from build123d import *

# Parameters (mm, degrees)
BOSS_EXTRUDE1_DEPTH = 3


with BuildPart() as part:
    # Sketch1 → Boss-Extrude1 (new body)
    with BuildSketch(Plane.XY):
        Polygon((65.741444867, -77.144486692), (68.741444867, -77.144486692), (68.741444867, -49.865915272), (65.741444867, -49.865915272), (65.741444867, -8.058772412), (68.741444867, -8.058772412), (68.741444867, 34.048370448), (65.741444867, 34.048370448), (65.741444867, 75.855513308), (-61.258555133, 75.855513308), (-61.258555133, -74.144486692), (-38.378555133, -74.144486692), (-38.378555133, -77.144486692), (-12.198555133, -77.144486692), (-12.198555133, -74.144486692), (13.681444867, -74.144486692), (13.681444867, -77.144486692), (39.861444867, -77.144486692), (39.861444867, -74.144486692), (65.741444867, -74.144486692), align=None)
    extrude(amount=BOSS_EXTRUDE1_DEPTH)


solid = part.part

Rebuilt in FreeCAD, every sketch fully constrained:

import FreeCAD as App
import Part
import Sketcher

doc = App.newDocument("Part")
body = doc.addObject("PartDesign::Body", "Body")

# Sketch on XY plane
sketch1 = body.newObject("Sketcher::SketchObject", "Sketch")
sketch1.AttachmentSupport = (doc.getObject("XY_Plane"), [""])
sketch1.MapMode = "FlatFace"
sketch1.addGeometry([
    Part.LineSegment(App.Vector(65.7, -77.1, 0), App.Vector(68.7, -77.1, 0)),  # 0
    Part.LineSegment(App.Vector(68.7, -77.1, 0), App.Vector(68.7, -49.9, 0)),  # 1
    Part.LineSegment(App.Vector(68.7, -49.9, 0), App.Vector(65.7, -49.9, 0)),  # 2
    Part.LineSegment(App.Vector(65.7, -49.9, 0), App.Vector(65.7, -8.1, 0)),  # 3
    Part.LineSegment(App.Vector(65.7, -8.1, 0), App.Vector(68.7, -8.1, 0)),  # 4
    Part.LineSegment(App.Vector(68.7, -8.1, 0), App.Vector(68.7, 34, 0)),  # 5
    Part.LineSegment(App.Vector(68.7, 34, 0), App.Vector(65.7, 34, 0)),  # 6
    Part.LineSegment(App.Vector(65.7, 34, 0), App.Vector(65.7, 75.9, 0)),  # 7
    Part.LineSegment(App.Vector(65.7, 75.9, 0), App.Vector(-61.3, 75.9, 0)),  # 8
    Part.LineSegment(App.Vector(-61.3, 75.9, 0), App.Vector(-61.3, -74.1, 0)),  # 9
    Part.LineSegment(App.Vector(-61.3, -74.1, 0), App.Vector(-38.4, -74.1, 0)),  # 10
    Part.LineSegment(App.Vector(-38.4, -74.1, 0), App.Vector(-38.4, -77.1, 0)),  # 11
    Part.LineSegment(App.Vector(-38.4, -77.1, 0), App.Vector(-12.2, -77.1, 0)),  # 12
    Part.LineSegment(App.Vector(-12.2, -77.1, 0), App.Vector(-12.2, -74.1, 0)),  # 13
    Part.LineSegment(App.Vector(-12.2, -74.1, 0), App.Vector(13.7, -74.1, 0)),  # 14
    Part.LineSegment(App.Vector(13.7, -74.1, 0), App.Vector(13.7, -77.1, 0)),  # 15
    Part.LineSegment(App.Vector(13.7, -77.1, 0), App.Vector(39.9, -77.1, 0)),  # 16
    Part.LineSegment(App.Vector(39.9, -77.1, 0), App.Vector(39.9, -74.1, 0)),  # 17
    Part.LineSegment(App.Vector(39.9, -74.1, 0), App.Vector(65.7, -74.1, 0)),  # 18
    Part.LineSegment(App.Vector(65.7, -74.1, 0), App.Vector(65.7, -77.1, 0)),  # 19
], False)
sketch1.addConstraint([
    Sketcher.Constraint("Coincident", 0, 2, 1, 1),
    Sketcher.Constraint("Coincident", 1, 2, 2, 1),
    Sketcher.Constraint("Coincident", 2, 2, 3, 1),
    Sketcher.Constraint("Coincident", 3, 2, 4, 1),
    Sketcher.Constraint("Coincident", 4, 2, 5, 1),
    Sketcher.Constraint("Coincident", 5, 2, 6, 1),
    Sketcher.Constraint("Coincident", 6, 2, 7, 1),
    Sketcher.Constraint("Coincident", 7, 2, 8, 1),
    Sketcher.Constraint("Coincident", 8, 2, 9, 1),
    Sketcher.Constraint("Coincident", 9, 2, 10, 1),
    Sketcher.Constraint("Coincident", 10, 2, 11, 1),
    Sketcher.Constraint("Coincident", 11, 2, 12, 1),
    Sketcher.Constraint("Coincident", 12, 2, 13, 1),
    Sketcher.Constraint("Coincident", 13, 2, 14, 1),
    Sketcher.Constraint("Coincident", 14, 2, 15, 1),
    Sketcher.Constraint("Coincident", 15, 2, 16, 1),
    Sketcher.Constraint("Coincident", 16, 2, 17, 1),
    Sketcher.Constraint("Coincident", 17, 2, 18, 1),
    Sketcher.Constraint("Coincident", 18, 2, 19, 1),
    Sketcher.Constraint("Coincident", 19, 2, 0, 1),
    Sketcher.Constraint("Horizontal", 0),
    Sketcher.Constraint("Vertical", 1),
    Sketcher.Constraint("Horizontal", 2),
    Sketcher.Constraint("Vertical", 3),
    Sketcher.Constraint("Horizontal", 4),
    Sketcher.Constraint("Vertical", 5),
    Sketcher.Constraint("Horizontal", 6),
    Sketcher.Constraint("Vertical", 7),
    Sketcher.Constraint("Horizontal", 8),
    Sketcher.Constraint("Vertical", 9),
    Sketcher.Constraint("Horizontal", 10),
    Sketcher.Constraint("Vertical", 11),
    Sketcher.Constraint("Horizontal", 12),
    Sketcher.Constraint("Vertical", 13),
    Sketcher.Constraint("Horizontal", 14),
    Sketcher.Constraint("Vertical", 15),
    Sketcher.Constraint("Horizontal", 16),
    Sketcher.Constraint("Vertical", 17),
    Sketcher.Constraint("Horizontal", 18),
    Sketcher.Constraint("Vertical", 19),
    Sketcher.Constraint("Horizontal", 0, 2, 11, 2),
    Sketcher.Constraint("Horizontal", 10, 2, 13, 2),
    Sketcher.Constraint("Horizontal", 12, 2, 15, 2),
    Sketcher.Constraint("Horizontal", 14, 2, 17, 2),
    Sketcher.Constraint("Vertical", 1, 2, 4, 2),
    Sketcher.Constraint("Vertical", 3, 2, 6, 2),
    Sketcher.Constraint("Vertical", 7, 2, 18, 2),
    Sketcher.Constraint("Equal", 12, 16),
    Sketcher.Constraint("Equal", 14, 18),
    Sketcher.Constraint("Equal", 3, 7),
    Sketcher.Constraint("Equal", 6, 11),
    Sketcher.Constraint("DistanceX", 0, 1, 0, 2, 3.0),
    Sketcher.Constraint("DistanceX", 8, 2, 8, 1, 127.0),
    Sketcher.Constraint("DistanceY", 9, 2, 9, 1, 150.0),
    Sketcher.Constraint("DistanceX", 10, 1, 10, 2, 22.88),
    Sketcher.Constraint("DistanceX", 12, 1, 12, 2, 26.18),
    Sketcher.Constraint("DistanceY", 1, 1, 1, 2, 27.278571),
    Sketcher.Constraint("DistanceY", 3, 1, 3, 2, 41.807143),
    Sketcher.Constraint("DistanceY", -1, 1, 5, 2, 34.04837),
    Sketcher.Constraint("DistanceX", -1, 1, 0, 2, 68.741445),
])
pad1 = body.newObject("PartDesign::Pad", "Pad")
pad1.Profile = sketch1
pad1.Length = 3

doc.recompute()
